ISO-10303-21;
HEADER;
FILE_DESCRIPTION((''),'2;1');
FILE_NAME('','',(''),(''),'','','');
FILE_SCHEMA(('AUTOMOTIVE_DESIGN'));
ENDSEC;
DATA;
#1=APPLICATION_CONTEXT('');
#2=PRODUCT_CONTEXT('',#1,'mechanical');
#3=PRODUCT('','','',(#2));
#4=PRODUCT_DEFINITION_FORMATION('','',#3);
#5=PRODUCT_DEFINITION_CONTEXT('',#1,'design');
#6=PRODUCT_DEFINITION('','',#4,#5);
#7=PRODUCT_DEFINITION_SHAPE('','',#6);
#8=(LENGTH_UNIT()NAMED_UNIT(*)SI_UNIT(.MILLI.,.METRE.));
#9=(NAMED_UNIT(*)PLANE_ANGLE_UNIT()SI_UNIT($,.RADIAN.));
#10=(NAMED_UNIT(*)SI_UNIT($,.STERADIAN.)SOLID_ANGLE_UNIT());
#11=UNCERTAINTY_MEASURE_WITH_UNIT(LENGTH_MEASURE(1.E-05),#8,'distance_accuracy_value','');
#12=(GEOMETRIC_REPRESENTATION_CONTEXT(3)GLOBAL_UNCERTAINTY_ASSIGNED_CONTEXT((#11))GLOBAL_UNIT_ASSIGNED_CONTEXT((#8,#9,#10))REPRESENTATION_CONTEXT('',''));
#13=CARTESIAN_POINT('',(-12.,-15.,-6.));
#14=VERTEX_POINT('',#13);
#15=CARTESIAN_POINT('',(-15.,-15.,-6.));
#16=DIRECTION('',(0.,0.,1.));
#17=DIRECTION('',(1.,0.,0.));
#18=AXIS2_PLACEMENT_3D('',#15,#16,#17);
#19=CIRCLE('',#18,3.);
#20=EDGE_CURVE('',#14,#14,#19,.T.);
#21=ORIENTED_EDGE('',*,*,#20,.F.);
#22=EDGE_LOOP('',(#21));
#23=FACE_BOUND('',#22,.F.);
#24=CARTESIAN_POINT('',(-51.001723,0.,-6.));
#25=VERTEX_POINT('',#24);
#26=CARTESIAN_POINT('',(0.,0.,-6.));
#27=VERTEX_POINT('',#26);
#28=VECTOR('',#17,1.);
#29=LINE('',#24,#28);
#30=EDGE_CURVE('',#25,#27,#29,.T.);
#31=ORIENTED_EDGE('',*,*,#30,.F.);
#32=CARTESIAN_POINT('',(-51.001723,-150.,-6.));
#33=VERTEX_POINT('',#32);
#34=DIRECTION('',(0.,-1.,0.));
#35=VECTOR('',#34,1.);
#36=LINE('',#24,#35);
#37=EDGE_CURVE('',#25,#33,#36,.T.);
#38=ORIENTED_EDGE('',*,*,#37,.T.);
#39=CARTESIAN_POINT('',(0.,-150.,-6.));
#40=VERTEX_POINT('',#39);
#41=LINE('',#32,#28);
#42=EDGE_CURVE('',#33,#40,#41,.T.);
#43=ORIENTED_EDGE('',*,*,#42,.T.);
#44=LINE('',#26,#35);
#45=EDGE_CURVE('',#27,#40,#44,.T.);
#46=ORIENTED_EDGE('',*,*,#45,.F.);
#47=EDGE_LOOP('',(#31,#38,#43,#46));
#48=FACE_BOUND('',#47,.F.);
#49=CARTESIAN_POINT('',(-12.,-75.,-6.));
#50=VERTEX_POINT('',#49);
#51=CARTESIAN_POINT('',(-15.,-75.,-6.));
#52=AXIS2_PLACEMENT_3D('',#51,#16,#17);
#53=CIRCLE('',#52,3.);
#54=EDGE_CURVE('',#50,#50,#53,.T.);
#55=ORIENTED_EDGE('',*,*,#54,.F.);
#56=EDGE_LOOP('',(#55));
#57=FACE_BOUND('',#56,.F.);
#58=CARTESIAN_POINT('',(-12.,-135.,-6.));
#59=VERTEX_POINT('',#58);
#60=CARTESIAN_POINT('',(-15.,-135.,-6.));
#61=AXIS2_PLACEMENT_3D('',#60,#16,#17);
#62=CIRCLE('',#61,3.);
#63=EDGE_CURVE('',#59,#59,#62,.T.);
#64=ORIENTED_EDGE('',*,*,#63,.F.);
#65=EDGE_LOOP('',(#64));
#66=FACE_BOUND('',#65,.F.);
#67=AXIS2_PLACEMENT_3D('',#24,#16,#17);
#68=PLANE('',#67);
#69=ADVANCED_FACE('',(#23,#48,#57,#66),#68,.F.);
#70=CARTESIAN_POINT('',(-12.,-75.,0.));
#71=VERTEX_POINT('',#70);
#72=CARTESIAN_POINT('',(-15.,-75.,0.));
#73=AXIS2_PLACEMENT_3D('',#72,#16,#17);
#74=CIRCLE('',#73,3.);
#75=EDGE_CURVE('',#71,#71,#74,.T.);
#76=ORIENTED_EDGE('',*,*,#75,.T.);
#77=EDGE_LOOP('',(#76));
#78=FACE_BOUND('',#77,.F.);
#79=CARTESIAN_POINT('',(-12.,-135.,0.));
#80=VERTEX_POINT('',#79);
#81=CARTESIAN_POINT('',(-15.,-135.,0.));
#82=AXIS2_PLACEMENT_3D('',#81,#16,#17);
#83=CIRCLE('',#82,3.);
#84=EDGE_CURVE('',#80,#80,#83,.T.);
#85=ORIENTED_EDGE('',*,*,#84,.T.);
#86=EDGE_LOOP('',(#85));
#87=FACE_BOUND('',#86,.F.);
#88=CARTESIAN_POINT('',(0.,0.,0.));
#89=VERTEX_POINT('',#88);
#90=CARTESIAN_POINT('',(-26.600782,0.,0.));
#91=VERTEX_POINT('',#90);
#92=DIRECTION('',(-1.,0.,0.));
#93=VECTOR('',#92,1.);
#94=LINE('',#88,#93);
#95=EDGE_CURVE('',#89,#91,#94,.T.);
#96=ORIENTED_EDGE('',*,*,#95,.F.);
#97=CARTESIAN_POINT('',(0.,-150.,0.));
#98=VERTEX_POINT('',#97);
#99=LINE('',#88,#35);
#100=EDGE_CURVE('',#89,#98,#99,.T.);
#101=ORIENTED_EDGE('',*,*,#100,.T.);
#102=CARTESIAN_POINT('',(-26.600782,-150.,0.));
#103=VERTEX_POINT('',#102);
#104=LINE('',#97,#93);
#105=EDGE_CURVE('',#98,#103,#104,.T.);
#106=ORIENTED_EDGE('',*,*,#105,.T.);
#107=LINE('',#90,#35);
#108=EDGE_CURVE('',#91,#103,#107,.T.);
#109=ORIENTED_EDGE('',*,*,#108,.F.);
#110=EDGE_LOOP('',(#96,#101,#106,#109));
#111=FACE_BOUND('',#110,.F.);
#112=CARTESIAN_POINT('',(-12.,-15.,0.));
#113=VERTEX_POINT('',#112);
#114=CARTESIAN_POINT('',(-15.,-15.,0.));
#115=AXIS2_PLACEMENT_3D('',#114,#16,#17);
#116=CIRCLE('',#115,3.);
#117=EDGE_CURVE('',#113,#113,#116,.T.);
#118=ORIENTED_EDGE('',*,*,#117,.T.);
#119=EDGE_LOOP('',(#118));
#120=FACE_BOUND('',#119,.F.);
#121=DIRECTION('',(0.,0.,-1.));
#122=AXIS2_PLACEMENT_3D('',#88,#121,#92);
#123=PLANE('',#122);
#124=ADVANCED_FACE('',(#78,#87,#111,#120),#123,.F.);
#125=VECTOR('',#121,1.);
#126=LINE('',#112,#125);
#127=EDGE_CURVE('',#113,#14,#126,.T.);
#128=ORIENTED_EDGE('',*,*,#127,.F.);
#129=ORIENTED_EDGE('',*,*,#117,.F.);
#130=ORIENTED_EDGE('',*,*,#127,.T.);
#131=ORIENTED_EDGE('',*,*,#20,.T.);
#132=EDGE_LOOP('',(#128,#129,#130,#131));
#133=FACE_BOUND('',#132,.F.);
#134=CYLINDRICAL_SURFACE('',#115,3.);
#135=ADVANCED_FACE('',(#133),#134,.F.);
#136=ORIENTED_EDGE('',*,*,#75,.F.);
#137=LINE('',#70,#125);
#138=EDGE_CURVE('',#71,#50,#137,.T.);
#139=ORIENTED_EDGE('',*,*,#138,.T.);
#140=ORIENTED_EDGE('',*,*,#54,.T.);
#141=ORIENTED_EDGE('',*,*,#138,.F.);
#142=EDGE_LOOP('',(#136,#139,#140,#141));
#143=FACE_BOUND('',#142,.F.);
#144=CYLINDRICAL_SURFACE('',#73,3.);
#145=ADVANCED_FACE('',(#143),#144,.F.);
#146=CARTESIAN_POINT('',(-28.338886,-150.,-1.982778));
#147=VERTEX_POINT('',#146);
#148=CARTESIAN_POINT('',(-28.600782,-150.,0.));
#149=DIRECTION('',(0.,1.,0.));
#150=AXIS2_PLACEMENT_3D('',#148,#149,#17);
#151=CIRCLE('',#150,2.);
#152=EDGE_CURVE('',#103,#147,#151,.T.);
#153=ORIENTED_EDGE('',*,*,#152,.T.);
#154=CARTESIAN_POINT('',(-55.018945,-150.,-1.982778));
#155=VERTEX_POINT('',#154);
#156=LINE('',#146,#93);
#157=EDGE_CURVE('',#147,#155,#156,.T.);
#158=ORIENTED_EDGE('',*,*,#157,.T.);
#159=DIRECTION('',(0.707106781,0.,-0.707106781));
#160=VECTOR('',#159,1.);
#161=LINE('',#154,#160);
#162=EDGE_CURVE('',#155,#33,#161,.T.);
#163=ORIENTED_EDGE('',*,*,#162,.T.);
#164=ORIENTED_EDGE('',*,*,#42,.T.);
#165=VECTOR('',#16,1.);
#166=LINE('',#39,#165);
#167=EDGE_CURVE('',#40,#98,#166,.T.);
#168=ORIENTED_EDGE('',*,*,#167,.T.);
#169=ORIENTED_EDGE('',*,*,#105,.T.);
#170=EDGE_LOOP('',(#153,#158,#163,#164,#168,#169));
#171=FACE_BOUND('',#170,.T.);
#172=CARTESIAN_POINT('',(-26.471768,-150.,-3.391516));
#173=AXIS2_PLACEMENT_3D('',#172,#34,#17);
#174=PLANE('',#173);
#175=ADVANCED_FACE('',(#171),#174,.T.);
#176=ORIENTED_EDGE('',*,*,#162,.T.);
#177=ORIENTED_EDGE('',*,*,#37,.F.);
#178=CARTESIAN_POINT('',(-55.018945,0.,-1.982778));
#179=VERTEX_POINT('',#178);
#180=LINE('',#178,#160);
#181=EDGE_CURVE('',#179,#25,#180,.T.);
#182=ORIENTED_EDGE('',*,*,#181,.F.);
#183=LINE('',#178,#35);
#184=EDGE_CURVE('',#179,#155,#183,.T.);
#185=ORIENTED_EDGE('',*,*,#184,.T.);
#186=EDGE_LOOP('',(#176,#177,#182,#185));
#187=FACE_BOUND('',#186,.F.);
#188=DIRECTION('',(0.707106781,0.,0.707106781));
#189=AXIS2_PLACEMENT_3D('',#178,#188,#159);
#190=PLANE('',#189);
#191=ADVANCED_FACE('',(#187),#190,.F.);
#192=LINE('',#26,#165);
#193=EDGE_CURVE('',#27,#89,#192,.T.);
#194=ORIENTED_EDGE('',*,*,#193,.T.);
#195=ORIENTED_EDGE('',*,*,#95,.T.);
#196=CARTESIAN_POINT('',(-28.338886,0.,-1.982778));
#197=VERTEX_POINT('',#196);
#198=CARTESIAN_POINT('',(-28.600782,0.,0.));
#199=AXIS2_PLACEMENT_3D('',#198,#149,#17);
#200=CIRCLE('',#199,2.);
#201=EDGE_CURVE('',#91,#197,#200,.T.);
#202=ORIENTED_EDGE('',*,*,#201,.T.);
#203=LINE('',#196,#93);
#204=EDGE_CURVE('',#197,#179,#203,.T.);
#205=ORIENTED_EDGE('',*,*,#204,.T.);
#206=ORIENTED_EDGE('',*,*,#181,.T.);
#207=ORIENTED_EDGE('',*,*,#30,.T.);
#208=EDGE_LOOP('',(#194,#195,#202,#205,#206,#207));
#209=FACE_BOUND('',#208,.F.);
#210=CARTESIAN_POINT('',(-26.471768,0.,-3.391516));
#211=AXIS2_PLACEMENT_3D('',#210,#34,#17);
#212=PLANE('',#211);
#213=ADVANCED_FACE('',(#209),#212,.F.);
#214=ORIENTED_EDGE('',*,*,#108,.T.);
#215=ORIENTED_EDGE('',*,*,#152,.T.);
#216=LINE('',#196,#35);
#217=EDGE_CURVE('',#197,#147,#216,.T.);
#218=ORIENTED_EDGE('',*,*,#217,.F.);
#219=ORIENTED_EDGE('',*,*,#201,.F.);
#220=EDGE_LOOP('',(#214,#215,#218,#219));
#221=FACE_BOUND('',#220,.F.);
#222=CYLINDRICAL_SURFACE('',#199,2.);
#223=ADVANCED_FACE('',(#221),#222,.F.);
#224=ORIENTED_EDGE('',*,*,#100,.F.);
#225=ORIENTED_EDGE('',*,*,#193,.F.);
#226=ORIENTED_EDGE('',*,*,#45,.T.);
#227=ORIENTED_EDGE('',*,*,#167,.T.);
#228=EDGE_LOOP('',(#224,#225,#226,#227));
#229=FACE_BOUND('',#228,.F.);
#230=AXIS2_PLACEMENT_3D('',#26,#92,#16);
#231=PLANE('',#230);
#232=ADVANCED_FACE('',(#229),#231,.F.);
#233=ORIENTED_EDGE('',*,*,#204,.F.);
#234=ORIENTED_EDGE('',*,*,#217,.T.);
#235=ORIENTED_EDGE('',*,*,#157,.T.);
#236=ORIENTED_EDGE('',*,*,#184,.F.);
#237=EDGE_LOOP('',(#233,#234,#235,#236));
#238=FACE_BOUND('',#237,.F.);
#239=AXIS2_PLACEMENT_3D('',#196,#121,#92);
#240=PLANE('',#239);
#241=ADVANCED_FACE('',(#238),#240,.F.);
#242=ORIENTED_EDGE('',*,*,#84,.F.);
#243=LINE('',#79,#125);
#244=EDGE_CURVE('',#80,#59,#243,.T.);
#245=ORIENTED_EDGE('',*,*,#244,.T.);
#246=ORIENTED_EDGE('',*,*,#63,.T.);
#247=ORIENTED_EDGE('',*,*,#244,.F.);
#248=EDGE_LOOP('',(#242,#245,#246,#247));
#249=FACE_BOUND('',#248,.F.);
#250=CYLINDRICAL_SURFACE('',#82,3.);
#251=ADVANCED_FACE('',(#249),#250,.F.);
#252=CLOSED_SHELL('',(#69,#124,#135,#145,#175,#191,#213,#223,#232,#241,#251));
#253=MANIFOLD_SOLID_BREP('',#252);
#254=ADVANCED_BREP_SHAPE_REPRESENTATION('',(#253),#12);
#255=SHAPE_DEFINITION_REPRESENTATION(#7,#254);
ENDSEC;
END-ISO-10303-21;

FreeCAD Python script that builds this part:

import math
import FreeCAD as App
import Part
import Sketcher
Q = App.Units.Quantity

doc = App.newDocument("Part")
body = doc.addObject("PartDesign::Body", "Body")

sketch1 = body.newObject("Sketcher::SketchObject", "Sketch")
sketch1.AttachmentSupport = (doc.getObject("XZ_Plane"), [""])
sketch1.MapMode = "FlatFace"
sketch1.addGeometry(Part.LineSegment(App.Vector(0, -6, 0), App.Vector(0, 0, 0)), False)
sketch1.addGeometry(Part.LineSegment(App.Vector(0, 0, 0), App.Vector(-26.6, 0, 0)), False)
sketch1.addGeometry(Part.ArcOfCircle(Part.Circle(App.Vector(-28.6, 0, 0), App.Vector(0, 0, 1), 2), math.radians(-82), math.radians(0)), False)
sketch1.addGeometry(Part.LineSegment(App.Vector(-28.3, -2, 0), App.Vector(-55, -2, 0)), False)
sketch1.addGeometry(Part.LineSegment(App.Vector(-55, -2, 0), App.Vector(-51, -6, 0)), False)
sketch1.addGeometry(Part.LineSegment(App.Vector(-51, -6, 0), App.Vector(0, -6, 0)), False)
sketch1.addConstraint(Sketcher.Constraint("Coincident", 0, 2, 1, 1))
sketch1.addConstraint(Sketcher.Constraint("Coincident", 1, 2, 2, 2))
sketch1.addConstraint(Sketcher.Constraint("Coincident", 2, 1, 3, 1))
sketch1.addConstraint(Sketcher.Constraint("Coincident", 3, 2, 4, 1))
sketch1.addConstraint(Sketcher.Constraint("Coincident", 4, 2, 5, 1))
sketch1.addConstraint(Sketcher.Constraint("Coincident", 5, 2, 0, 1))
sketch1.addConstraint(Sketcher.Constraint("Vertical", 0))
sketch1.addConstraint(Sketcher.Constraint("Horizontal", 1))
sketch1.addConstraint(Sketcher.Constraint("Horizontal", 3))
sketch1.addConstraint(Sketcher.Constraint("Horizontal", 5))
sketch1.addConstraint(Sketcher.Constraint("Coincident", 0, 2, -1, 1))
sketch1.addConstraint(Sketcher.Constraint("PointOnObject", 2, 3, -1))
sketch1.addConstraint(Sketcher.Constraint("Radius", 2, Q("2 mm")))
sketch1.addConstraint(Sketcher.Constraint("DistanceY", 0, 1, 0, 2, Q("6 mm")))
sketch1.addConstraint(Sketcher.Constraint("Angle", 4, Q("-45 deg")))
sketch1.addConstraint(Sketcher.Constraint("DistanceX", 3, 2, 3, 1, Q("26.680059 mm")))
sketch1.addConstraint(Sketcher.Constraint("Distance", 4, Q("5.681209 mm")))
sketch1.addConstraint(Sketcher.Constraint("DistanceX", 1, 2, 1, 1, Q("26.600782 mm")))
pad1 = body.newObject("PartDesign::Pad", "Pad")
pad1.Profile = sketch1
pad1.Length = 150

sketch2 = body.newObject("Sketcher::SketchObject", "Sketch001")
sketch2.AttachmentSupport = (doc.getObject("XY_Plane"), [""])
sketch2.MapMode = "FlatFace"
sketch2.addGeometry(Part.Circle(App.Vector(-15, -15, 0), App.Vector(0, 0, 1), 3), False)
sketch2.addGeometry(Part.Circle(App.Vector(-15, -135, 0), App.Vector(0, 0, 1), 3), False)
sketch2.addGeometry(Part.Circle(App.Vector(-15, -75, 0), App.Vector(0, 0, 1), 3), False)
sketch2.addConstraint(Sketcher.Constraint("Equal", 0, 1))
sketch2.addConstraint(Sketcher.Constraint("Equal", 1, 2))
sketch2.addConstraint(Sketcher.Constraint("Vertical", 0, 3, 1, 3))
sketch2.addConstraint(Sketcher.Constraint("Vertical", 1, 3, 2, 3))
sketch2.addConstraint(Sketcher.Constraint("Diameter", 0, Q("6 mm")))
sketch2.addConstraint(Sketcher.Constraint("DistanceX", 0, 3, -1, 1, Q("15 mm")))
sketch2.addConstraint(Sketcher.Constraint("DistanceY", 0, 3, -1, 1, Q("15 mm")))
sketch2.addConstraint(Sketcher.Constraint("DistanceY", 1, 3, -1, 1, Q("135 mm")))
sketch2.addConstraint(Sketcher.Constraint("DistanceY", 2, 3, -1, 1, Q("75 mm")))
pocket1 = body.newObject("PartDesign::Pocket", "Pocket")
pocket1.Profile = sketch2
pocket1.Length = 25

doc.recompute()
